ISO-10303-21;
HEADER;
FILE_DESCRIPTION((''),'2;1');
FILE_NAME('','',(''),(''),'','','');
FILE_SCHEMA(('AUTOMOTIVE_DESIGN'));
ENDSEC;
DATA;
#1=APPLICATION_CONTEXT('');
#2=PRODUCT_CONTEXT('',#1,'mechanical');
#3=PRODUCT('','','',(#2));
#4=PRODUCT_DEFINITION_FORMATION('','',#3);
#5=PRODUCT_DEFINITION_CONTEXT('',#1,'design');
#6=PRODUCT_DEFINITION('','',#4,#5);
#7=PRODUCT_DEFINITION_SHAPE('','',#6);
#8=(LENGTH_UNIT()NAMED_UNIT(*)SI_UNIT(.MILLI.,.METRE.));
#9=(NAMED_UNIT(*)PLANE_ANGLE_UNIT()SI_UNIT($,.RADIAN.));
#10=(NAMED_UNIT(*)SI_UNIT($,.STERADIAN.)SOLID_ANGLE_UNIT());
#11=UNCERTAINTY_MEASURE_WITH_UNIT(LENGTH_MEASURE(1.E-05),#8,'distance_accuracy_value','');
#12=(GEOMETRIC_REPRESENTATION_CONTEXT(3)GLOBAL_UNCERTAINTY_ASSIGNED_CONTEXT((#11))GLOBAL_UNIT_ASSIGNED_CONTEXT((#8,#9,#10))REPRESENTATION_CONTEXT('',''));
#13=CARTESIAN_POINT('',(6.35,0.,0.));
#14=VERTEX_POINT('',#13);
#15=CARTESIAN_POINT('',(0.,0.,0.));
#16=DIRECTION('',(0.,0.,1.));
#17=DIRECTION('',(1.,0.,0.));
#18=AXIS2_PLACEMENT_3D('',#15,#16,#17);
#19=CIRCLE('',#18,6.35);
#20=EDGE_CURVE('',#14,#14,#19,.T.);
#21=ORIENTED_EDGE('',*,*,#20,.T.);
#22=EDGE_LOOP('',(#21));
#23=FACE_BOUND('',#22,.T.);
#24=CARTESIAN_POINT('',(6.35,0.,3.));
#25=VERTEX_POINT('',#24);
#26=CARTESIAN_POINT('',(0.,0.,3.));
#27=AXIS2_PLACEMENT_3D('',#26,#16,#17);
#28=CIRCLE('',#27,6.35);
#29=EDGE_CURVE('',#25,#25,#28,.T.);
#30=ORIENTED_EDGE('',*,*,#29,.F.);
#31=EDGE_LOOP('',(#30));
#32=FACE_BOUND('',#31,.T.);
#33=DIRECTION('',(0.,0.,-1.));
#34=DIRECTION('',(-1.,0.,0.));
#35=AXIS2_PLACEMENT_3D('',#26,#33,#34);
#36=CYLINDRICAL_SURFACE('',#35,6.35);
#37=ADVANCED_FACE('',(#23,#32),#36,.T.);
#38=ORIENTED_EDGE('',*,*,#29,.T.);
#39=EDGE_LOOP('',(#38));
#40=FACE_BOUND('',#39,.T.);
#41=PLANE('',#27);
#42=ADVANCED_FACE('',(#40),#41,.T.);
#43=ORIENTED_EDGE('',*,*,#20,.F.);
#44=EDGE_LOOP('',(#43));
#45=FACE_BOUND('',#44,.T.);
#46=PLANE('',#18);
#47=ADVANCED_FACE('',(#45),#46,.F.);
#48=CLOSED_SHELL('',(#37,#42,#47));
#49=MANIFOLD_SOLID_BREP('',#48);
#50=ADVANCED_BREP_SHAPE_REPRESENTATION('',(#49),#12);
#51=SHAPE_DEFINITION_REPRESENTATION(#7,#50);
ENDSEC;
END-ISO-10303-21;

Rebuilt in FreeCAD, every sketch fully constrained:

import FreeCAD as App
import Part
import Sketcher

V = App.Vector

doc = App.newDocument("Part")
params = doc.addObject("Spreadsheet::Sheet", "Params")
for row, (alias, value) in enumerate([
    ("sketch1_diameter", "12.7 mm"),
    ("pad1_length", "3 mm"),
], start=1):
    params.set(f"A{row}", alias)
    params.set(f"B{row}", "=" + value)
    params.setAlias(f"B{row}", alias)

body = doc.addObject("PartDesign::Body", "Body")

# Sketch on XY plane
sketch1 = body.newObject("Sketcher::SketchObject", "Sketch")
sketch1.AttachmentSupport = (doc.getObject("XY_Plane"), [""])
sketch1.MapMode = "FlatFace"
sketch1.addGeometry(Part.Circle(V(0, 0, 0), V(0, 0, 1), 6.35), False)
sketch1.addConstraint(Sketcher.Constraint("Coincident", 0, 3, -1, 1))
sketch1.addConstraint(Sketcher.Constraint("Diameter", 0, 12.7))
sketch1.setExpression("Constraints[1]", "Params.sketch1_diameter")
pad1 = body.newObject("PartDesign::Pad", "Pad")
pad1.Profile = sketch1
pad1.setExpression("Length", "Params.pad1_length")

doc.recompute()
